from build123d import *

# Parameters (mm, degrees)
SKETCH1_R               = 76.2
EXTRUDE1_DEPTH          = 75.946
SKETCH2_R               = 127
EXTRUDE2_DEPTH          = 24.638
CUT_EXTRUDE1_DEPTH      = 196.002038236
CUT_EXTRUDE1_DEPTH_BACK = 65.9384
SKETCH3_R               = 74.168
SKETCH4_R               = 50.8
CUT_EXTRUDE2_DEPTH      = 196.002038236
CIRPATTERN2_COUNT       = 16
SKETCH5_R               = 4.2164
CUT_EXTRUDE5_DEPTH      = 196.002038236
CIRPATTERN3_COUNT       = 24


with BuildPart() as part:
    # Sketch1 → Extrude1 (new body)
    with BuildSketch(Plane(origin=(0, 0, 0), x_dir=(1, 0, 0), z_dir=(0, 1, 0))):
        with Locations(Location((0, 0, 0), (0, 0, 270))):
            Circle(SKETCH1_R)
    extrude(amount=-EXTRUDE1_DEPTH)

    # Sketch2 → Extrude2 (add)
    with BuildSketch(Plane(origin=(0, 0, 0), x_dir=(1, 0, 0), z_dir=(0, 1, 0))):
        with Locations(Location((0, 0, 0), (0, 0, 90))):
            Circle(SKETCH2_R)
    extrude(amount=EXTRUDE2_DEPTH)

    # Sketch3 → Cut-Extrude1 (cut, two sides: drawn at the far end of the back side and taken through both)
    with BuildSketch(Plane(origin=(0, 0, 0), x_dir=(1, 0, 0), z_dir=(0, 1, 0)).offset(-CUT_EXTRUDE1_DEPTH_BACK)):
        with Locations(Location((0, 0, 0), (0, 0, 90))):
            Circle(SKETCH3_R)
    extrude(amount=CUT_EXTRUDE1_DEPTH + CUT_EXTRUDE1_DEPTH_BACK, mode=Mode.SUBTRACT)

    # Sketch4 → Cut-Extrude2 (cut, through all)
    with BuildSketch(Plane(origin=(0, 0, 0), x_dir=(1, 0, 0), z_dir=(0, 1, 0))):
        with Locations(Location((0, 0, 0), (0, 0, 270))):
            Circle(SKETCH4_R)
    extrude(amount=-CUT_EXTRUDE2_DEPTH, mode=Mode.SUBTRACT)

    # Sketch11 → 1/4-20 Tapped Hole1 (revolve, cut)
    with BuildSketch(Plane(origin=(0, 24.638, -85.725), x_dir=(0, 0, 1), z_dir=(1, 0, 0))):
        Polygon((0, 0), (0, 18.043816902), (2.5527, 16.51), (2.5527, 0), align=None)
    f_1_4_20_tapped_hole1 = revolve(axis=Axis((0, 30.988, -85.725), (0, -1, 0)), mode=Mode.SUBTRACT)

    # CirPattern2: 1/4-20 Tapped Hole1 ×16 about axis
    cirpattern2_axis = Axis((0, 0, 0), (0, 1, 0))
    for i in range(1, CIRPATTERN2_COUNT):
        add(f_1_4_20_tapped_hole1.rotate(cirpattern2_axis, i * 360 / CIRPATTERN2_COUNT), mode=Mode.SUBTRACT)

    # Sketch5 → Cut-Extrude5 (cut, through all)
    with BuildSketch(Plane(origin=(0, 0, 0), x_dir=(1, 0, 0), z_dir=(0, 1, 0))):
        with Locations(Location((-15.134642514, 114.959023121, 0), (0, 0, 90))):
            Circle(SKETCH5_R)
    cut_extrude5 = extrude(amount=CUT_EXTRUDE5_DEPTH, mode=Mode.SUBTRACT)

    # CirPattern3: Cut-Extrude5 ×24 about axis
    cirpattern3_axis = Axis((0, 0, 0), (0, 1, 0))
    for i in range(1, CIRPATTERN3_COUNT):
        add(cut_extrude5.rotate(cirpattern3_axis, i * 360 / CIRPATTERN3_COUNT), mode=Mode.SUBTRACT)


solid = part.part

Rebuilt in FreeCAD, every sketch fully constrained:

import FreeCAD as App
import Part
import Sketcher
from FreeCAD import Vector
Q = App.Units.Quantity


def add_polygon(sketch, points):
    """Adds a closed chain of lines whose ends are joined by coincident constraints."""
    first, n = sketch.GeometryCount, len(points)
    for a, b in zip(points, points[1:] + points[:1]):
        sketch.addGeometry(Part.LineSegment(App.Vector(*a, 0), App.Vector(*b, 0)), False)
    for i in range(n):
        sketch.addConstraint(Sketcher.Constraint("Coincident", first + i, 2, first + (i + 1) % n, 1))

doc = App.newDocument("Part")
body = doc.addObject("PartDesign::Body", "Body")

sketch1 = body.newObject("Sketcher::SketchObject", "Sketch")
sketch1.AttachmentSupport = (doc.getObject("XZ_Plane"), [""])
sketch1.MapMode = "FlatFace"
sketch1.addGeometry(Part.Circle(Vector(0, 0, 0), Vector(0, 0, 1), 76), False)
sketch1.addConstraint([
    Sketcher.Constraint("Coincident", 0, 3, -1, 1),
    Sketcher.Constraint("Diameter", 0, Q("6 in")),
])
pad1 = body.newObject("PartDesign::Pad", "Pad")
pad1.Profile = sketch1
pad1.Length = Q("2.99 in")

sketch2 = body.newObject("Sketcher::SketchObject", "Sketch001")
sketch2.AttachmentSupport = (doc.getObject("XZ_Plane"), [""])
sketch2.MapMode = "FlatFace"
sketch2.addGeometry(Part.Circle(Vector(0, 0, 0), Vector(0, 0, 1), 127), False)
sketch2.addConstraint([
    Sketcher.Constraint("Coincident", 0, 3, -1, 1),
    Sketcher.Constraint("Diameter", 0, Q("10 in")),
])
pad2 = body.newObject("PartDesign::Pad", "Pad001")
pad2.Profile = sketch2
pad2.Length = Q("0.97 in")
pad2.Reversed = True

sketch3 = body.newObject("Sketcher::SketchObject", "Sketch002")
sketch3.AttachmentSupport = (doc.getObject("XZ_Plane"), [""])
sketch3.MapMode = "FlatFace"
sketch3.addGeometry(Part.Circle(Vector(0, 0, 0), Vector(0, 0, 1), 74), False)
sketch3.addConstraint([
    Sketcher.Constraint("Coincident", 0, 3, -1, 1),
    Sketcher.Constraint("Diameter", 0, Q("5.84 in")),
])
pocket1 = body.newObject("PartDesign::Pocket", "Pocket")
pocket1.Profile = sketch3
pocket1.Type = "TwoLengths"
pocket1.Length = 196.002038
pocket1.Length2 = Q("2.596 in")

sketch4 = body.newObject("Sketcher::SketchObject", "Sketch003")
sketch4.AttachmentSupport = (doc.getObject("XZ_Plane"), [""])
sketch4.MapMode = "FlatFace"
sketch4.addGeometry(Part.Circle(Vector(0, 0, 0), Vector(0, 0, 1), 51), False)
sketch4.addConstraint([
    Sketcher.Constraint("Coincident", 0, 3, -1, 1),
    Sketcher.Constraint("Diameter", 0, Q("4 in")),
])
pocket2 = body.newObject("PartDesign::Pocket", "Pocket001")
pocket2.Profile = sketch4
pocket2.Type = "ThroughAll"
pocket2.Reversed = True

sketch5 = body.newObject("Sketcher::SketchObject", "Sketch004")
sketch5.AttachmentSupport = (doc.getObject("YZ_Plane"), [""])
sketch5.MapMode = "FlatFace"
add_polygon(sketch5, [(6.6, -85.7), (24.6, -85.7), (24.6, -83.2), (8.1, -83.2)])
sketch5.addGeometry(Part.LineSegment(Vector(24.6, -85.7, 0), Vector(6.6, -85.7, 0)), True)
sketch5.addConstraint([
    Sketcher.Constraint("Horizontal", 0),
    Sketcher.Constraint("Vertical", 1),
    Sketcher.Constraint("Horizontal", 2),
    Sketcher.Constraint("Horizontal", 4),
    Sketcher.Constraint("Coincident", 4, 1, 0, 2),
    Sketcher.Constraint("Equal", 0, 4),
    Sketcher.Constraint("Angle", 3, Q("-121 deg")),
    Sketcher.Constraint("DistanceX", 2, 2, 2, 1, Q("0.65 in")),
    Sketcher.Constraint("DistanceX", -1, 1, 0, 2, Q("0.97 in")),
    Sketcher.Constraint("DistanceY", 1, 1, 1, 2, Q("0.1005 in")),
    Sketcher.Constraint("DistanceY", 0, 2, -1, 1, Q("3.375 in")),
])
groove = body.newObject("PartDesign::Groove", "Groove")
groove.Profile = sketch5
groove.ReferenceAxis = (sketch5, ["Axis0"])
groove.Angle = 360
doc.recompute()

polarpattern = body.newObject("PartDesign::PolarPattern", "PolarPattern")
polarpattern.Originals = [groove]
polarpattern.Axis = (doc.getObject("Y_Axis"), [""])
polarpattern.Angle = 360
polarpattern.Occurrences = 16
body.Tip = polarpattern

sketch6 = body.newObject("Sketcher::SketchObject", "Sketch005")
sketch6.AttachmentSupport = (doc.getObject("XZ_Plane"), [""])
sketch6.MapMode = "FlatFace"
sketch6.addGeometry(Part.Circle(Vector(-15.1, -115, 0), Vector(0, 0, 1), 4.2), False)
sketch6.addConstraint([
    Sketcher.Constraint("Diameter", 0, Q("0.332 in")),
    Sketcher.Constraint("DistanceX", 0, 3, -1, 1, 15.134643),
    Sketcher.Constraint("DistanceY", 0, 3, -1, 1, 114.959023),
])
pocket3 = body.newObject("PartDesign::Pocket", "Pocket002")
pocket3.Profile = sketch6
pocket3.Type = "ThroughAll"
doc.recompute()

polarpattern2 = body.newObject("PartDesign::PolarPattern", "PolarPattern001")
polarpattern2.Originals = [pocket3]
polarpattern2.Axis = (doc.getObject("Y_Axis"), [""])
polarpattern2.Angle = 360
polarpattern2.Occurrences = 24
body.Tip = polarpattern2

doc.recompute()
